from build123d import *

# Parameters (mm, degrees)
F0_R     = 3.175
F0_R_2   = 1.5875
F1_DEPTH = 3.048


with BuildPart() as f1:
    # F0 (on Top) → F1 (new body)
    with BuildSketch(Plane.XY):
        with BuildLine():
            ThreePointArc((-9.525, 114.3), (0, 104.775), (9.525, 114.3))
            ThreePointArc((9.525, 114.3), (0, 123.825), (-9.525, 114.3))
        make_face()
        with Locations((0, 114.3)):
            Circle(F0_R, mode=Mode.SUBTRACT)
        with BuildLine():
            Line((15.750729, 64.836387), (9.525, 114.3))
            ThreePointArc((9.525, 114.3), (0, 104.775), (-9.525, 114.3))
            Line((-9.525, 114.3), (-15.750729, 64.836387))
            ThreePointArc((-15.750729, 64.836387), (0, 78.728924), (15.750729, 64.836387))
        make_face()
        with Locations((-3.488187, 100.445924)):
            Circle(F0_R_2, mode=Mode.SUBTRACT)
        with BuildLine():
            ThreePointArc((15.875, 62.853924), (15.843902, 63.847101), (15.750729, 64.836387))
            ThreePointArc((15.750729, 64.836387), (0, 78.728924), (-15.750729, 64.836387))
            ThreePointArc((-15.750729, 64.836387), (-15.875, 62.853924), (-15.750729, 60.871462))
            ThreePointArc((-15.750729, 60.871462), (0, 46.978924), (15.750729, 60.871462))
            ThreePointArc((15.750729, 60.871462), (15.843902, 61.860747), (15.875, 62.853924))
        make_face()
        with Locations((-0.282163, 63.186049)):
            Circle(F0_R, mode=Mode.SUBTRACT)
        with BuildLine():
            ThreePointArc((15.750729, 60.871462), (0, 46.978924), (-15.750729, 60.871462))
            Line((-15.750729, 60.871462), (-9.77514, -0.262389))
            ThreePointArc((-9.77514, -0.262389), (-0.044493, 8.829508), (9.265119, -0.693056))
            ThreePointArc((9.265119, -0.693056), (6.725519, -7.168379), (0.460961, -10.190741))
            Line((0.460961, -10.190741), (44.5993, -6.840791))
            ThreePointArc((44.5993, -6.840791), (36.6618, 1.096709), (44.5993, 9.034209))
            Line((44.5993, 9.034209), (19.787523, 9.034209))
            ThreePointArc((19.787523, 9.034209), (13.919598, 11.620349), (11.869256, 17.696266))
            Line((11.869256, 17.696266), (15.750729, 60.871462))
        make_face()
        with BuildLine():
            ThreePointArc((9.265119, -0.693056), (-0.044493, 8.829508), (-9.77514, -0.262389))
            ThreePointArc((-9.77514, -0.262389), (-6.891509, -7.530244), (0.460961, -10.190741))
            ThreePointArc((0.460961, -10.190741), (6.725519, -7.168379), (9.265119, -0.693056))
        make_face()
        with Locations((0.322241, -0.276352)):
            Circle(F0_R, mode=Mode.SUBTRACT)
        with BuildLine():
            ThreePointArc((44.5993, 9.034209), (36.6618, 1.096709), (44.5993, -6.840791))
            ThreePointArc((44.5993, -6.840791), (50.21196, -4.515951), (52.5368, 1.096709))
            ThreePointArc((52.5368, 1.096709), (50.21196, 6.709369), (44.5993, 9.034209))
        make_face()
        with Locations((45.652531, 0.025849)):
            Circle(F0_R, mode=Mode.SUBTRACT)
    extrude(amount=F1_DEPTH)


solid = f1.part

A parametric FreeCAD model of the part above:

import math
import FreeCAD as App
import Part
import Sketcher
from FreeCAD import Vector
Q = App.Units.Quantity

doc = App.newDocument("Part")
params = doc.addObject("Spreadsheet::Sheet", "Params")
for row, (alias, value) in enumerate([
    ("sketch1_diameter", "0.25 in"),
    ("sketch1_diameter2", "0.25 in"),
    ("sketch1_diameter3", "0.25 in"),
    ("sketch1_diameter4", "0.25 in"),
    ("sketch1_diameter5", "0.125 in"),
    ("pad1_length", "0.12 in"),
], start=1):
    params.set(f"A{row}", alias)
    params.set(f"B{row}", "=" + value)
    params.setAlias(f"B{row}", alias)

body = doc.addObject("PartDesign::Body", "Body")

# Sketch on XY plane
sketch1 = body.newObject("Sketcher::SketchObject", "Sketch")
sketch1.AttachmentSupport = (doc.getObject("XY_Plane"), [""])
sketch1.MapMode = "FlatFace"
sketch1.addGeometry(Part.ArcOfCircle(Part.Circle(Vector(0, 114.3, 0), Vector(0, 0, 1), 9.525), math.radians(0), math.radians(180)), False)
sketch1.addGeometry(Part.LineSegment(Vector(-9.525, 114.3, 0), Vector(-15.750729, 64.836387, 0)), False)
sketch1.addGeometry(Part.ArcOfCircle(Part.Circle(Vector(-0.000014, 62.853924, 0), Vector(0, 0, 1), 15.874986), math.radians(172.826195), math.radians(187.173805)), False)
sketch1.addGeometry(Part.LineSegment(Vector(-15.750729, 60.871462, 0), Vector(-9.77514, -0.262389, 0)), False)
sketch1.addGeometry(Part.ArcOfCircle(Part.Circle(Vector(-0.259881, -0.693056, 0), Vector(0, 0, 1), 9.525), math.radians(177.408523), math.radians(274.340232)), False)
sketch1.addGeometry(Part.LineSegment(Vector(0.460961, -10.190741, 0), Vector(44.5993, -6.840791, 0)), False)
sketch1.addGeometry(Part.ArcOfCircle(Part.Circle(Vector(44.5993, 1.096709, 0), Vector(0, 0, 1), 7.9375), math.radians(-89.999998), math.radians(-0.000002)), False)
sketch1.addGeometry(Part.ArcOfCircle(Part.Circle(Vector(44.5993, 1.096709, 0), Vector(0, 0, 1), 7.9375), math.radians(0.000002), math.radians(89.999998)), False)
sketch1.addGeometry(Part.LineSegment(Vector(44.5993, 9.034209, 0), Vector(19.787523, 9.034209, 0)), False)
sketch1.addGeometry(Part.ArcOfCircle(Part.Circle(Vector(19.787523, 16.98441, 0), Vector(0, 0, 1), 7.950201), math.radians(174.86289), math.radians(270)), False)
sketch1.addGeometry(Part.LineSegment(Vector(11.869256, 17.696266, 0), Vector(15.750729, 60.871462, 0)), False)
sketch1.addGeometry(Part.ArcOfCircle(Part.Circle(Vector(0.000142, 62.853916, 0), Vector(0, 0, 1), 15.874858), math.radians(-7.173834), math.radians(0.000027)), False)
sketch1.addGeometry(Part.ArcOfCircle(Part.Circle(Vector(0.00011, 62.853931, 0), Vector(0, 0, 1), 15.87489), math.radians(-0.000024), math.radians(7.173827)), False)
sketch1.addGeometry(Part.LineSegment(Vector(15.750729, 64.836387, 0), Vector(9.525, 114.3, 0)), False)
sketch1.addGeometry(Part.Circle(Vector(0.322241, -0.276352, 0), Vector(0, 0, 1), 3.175), False)
sketch1.addGeometry(Part.Circle(Vector(45.652531, 0.025849, 0), Vector(0, 0, 1), 3.175), False)
sketch1.addGeometry(Part.Circle(Vector(-0.282163, 63.186049, 0), Vector(0, 0, 1), 3.175), False)
sketch1.addGeometry(Part.Circle(Vector(-3.488187, 100.445924, 0), Vector(0, 0, 1), 1.5875), False)
sketch1.addGeometry(Part.Circle(Vector(0, 114.3, 0), Vector(0, 0, 1), 3.175), False)
sketch1.addConstraint(Sketcher.Constraint("Coincident", 0, 2, 1, 1))
sketch1.addConstraint(Sketcher.Constraint("Coincident", 1, 2, 2, 1))
sketch1.addConstraint(Sketcher.Constraint("Coincident", 2, 2, 3, 1))
sketch1.addConstraint(Sketcher.Constraint("Coincident", 3, 2, 4, 1))
sketch1.addConstraint(Sketcher.Constraint("Coincident", 4, 2, 5, 1))
sketch1.addConstraint(Sketcher.Constraint("Coincident", 5, 2, 6, 1))
sketch1.addConstraint(Sketcher.Constraint("Coincident", 6, 2, 7, 1))
sketch1.addConstraint(Sketcher.Constraint("Coincident", 7, 2, 8, 1))
sketch1.addConstraint(Sketcher.Constraint("Coincident", 8, 2, 9, 2))
sketch1.addConstraint(Sketcher.Constraint("Coincident", 9, 1, 10, 1))
sketch1.addConstraint(Sketcher.Constraint("Coincident", 10, 2, 11, 1))
sketch1.addConstraint(Sketcher.Constraint("Coincident", 11, 2, 12, 1))
sketch1.addConstraint(Sketcher.Constraint("Coincident", 12, 2, 13, 1))
sketch1.addConstraint(Sketcher.Constraint("Coincident", 13, 2, 0, 1))
sketch1.addConstraint(Sketcher.Constraint("Horizontal", 8))
sketch1.addConstraint(Sketcher.Constraint("Coincident", 7, 3, 6, 3))
sketch1.addConstraint(Sketcher.Constraint("Coincident", 18, 3, 0, 3))
sketch1.addConstraint(Sketcher.Constraint("PointOnObject", 0, 3, -2))
sketch1.addConstraint(Sketcher.Constraint("Diameter", 14, Q("0.25 in")))
sketch1.addConstraint(Sketcher.Constraint("Diameter", 15, Q("0.25 in")))
sketch1.addConstraint(Sketcher.Constraint("Diameter", 16, Q("0.25 in")))
sketch1.addConstraint(Sketcher.Constraint("Diameter", 18, Q("0.25 in")))
sketch1.addConstraint(Sketcher.Constraint("Diameter", 17, Q("0.125 in")))
sketch1.addConstraint(Sketcher.Constraint("Radius", 0, Q("0.375 in")))
sketch1.addConstraint(Sketcher.Constraint("Radius", 4, Q("0.375 in")))
sketch1.addConstraint(Sketcher.Constraint("Radius", 6, Q("0.3125 in")))
sketch1.addConstraint(Sketcher.Constraint("Radius", 9, Q("0.313 in")))
sketch1.addConstraint(Sketcher.Constraint("DistanceY", -1, 1, 0, 3, Q("4.5 in")))
sketch1.addConstraint(Sketcher.Constraint("DistanceY", -1, 1, 0, 2, Q("4.5 in")))
sketch1.addConstraint(Sketcher.Constraint("DistanceY", -1, 1, 13, 2, Q("4.5 in")))
sketch1.addConstraint(Sketcher.Constraint("DistanceY", 2, 3, 17, 3, Q("1.48 in")))
sketch1.addConstraint(Sketcher.Constraint("DistanceX", -1, 1, 11, 2, Q("0.625 in")))
sketch1.addConstraint(Sketcher.Constraint("Radius", 11, 15.874858))
sketch1.addConstraint(Sketcher.Constraint("Radius", 12, 15.87489))
sketch1.addConstraint(Sketcher.Constraint("DistanceX", 5, 2, 6, 2, Q("0.3125 in")))
sketch1.addConstraint(Sketcher.Constraint("DistanceY", 5, 2, 6, 2, Q("0.3125 in")))
sketch1.addConstraint(Sketcher.Constraint("DistanceX", 7, 2, 6, 2, Q("0.3125 in")))
sketch1.addConstraint(Sketcher.Constraint("Radius", 2, 15.874986))
sketch1.addConstraint(Sketcher.Constraint("Distance", 3, 61.425202))
sketch1.addConstraint(Sketcher.Constraint("DistanceX", -1, 1, 6, 3, 44.5993))
sketch1.addConstraint(Sketcher.Constraint("DistanceX", 11, 3, 14, 3, 0.322099))
sketch1.addConstraint(Sketcher.Constraint("DistanceY", 14, 3, 15, 3, 0.302201))
sketch1.addConstraint(Sketcher.Constraint("DistanceY", 3, 2, 9, 3, 17.246799))
sketch1.addConstraint(Sketcher.Constraint("DistanceX", 3, 2, 4, 2, 10.236101))
sketch1.addConstraint(Sketcher.Constraint("Distance", 5, 44.265281))
sketch1.addConstraint(Sketcher.Constraint("Distance", 10, 43.349318))
sketch1.addConstraint(Sketcher.Constraint("DistanceX", 8, 2, 8, 1, 24.811777))
sketch1.addConstraint(Sketcher.Constraint("DistanceX", 4, 3, -1, 1, 0.259881))
sketch1.addConstraint(Sketcher.Constraint("DistanceY", -1, 1, 6, 3, 1.096709))
sketch1.addConstraint(Sketcher.Constraint("DistanceY", -1, 1, 12, 3, 62.853931))
sketch1.addConstraint(Sketcher.Constraint("DistanceX", -1, 1, 15, 3, 45.652531))
sketch1.addConstraint(Sketcher.Constraint("DistanceY", -1, 1, 15, 3, 0.025849))
sketch1.addConstraint(Sketcher.Constraint("DistanceY", -1, 1, 16, 3, 63.186049))
sketch1.addConstraint(Sketcher.Constraint("DistanceX", 1, 2, -1, 1, 15.750729))
sketch1.addConstraint(Sketcher.Constraint("DistanceX", 2, 2, -1, 1, 15.750729))
sketch1.addConstraint(Sketcher.Constraint("DistanceX", -1, 1, 10, 2, 15.750729))
sketch1.addConstraint(Sketcher.Constraint("DistanceX", -1, 1, 12, 2, 15.750729))
sketch1.addConstraint(Sketcher.Constraint("DistanceY", 4, 3, 2, 3, 63.546981))
sketch1.addConstraint(Sketcher.Constraint("DistanceX", 11, 3, 9, 3, 19.787381))
sketch1.addConstraint(Sketcher.Constraint("DistanceY", 14, 3, 11, 3, 63.130268))
sketch1.addConstraint(Sketcher.Constraint("DistanceX", 16, 3, 2, 3, 0.282149))
sketch1.addConstraint(Sketcher.Constraint("DistanceX", 17, 3, 11, 3, 3.488329))
sketch1.addConstraint(Sketcher.Constraint("DistanceY", 10, 2, 11, 2, 1.982462))
sketch1.setExpression("Constraints[18]", "Params.sketch1_diameter")
sketch1.setExpression("Constraints[19]", "Params.sketch1_diameter2")
sketch1.setExpression("Constraints[20]", "Params.sketch1_diameter3")
sketch1.setExpression("Constraints[21]", "Params.sketch1_diameter4")
sketch1.setExpression("Constraints[22]", "Params.sketch1_diameter5")
pad1 = body.newObject("PartDesign::Pad", "Pad")
pad1.Profile = sketch1
pad1.setExpression("Length", "Params.pad1_length")

doc.recompute()
